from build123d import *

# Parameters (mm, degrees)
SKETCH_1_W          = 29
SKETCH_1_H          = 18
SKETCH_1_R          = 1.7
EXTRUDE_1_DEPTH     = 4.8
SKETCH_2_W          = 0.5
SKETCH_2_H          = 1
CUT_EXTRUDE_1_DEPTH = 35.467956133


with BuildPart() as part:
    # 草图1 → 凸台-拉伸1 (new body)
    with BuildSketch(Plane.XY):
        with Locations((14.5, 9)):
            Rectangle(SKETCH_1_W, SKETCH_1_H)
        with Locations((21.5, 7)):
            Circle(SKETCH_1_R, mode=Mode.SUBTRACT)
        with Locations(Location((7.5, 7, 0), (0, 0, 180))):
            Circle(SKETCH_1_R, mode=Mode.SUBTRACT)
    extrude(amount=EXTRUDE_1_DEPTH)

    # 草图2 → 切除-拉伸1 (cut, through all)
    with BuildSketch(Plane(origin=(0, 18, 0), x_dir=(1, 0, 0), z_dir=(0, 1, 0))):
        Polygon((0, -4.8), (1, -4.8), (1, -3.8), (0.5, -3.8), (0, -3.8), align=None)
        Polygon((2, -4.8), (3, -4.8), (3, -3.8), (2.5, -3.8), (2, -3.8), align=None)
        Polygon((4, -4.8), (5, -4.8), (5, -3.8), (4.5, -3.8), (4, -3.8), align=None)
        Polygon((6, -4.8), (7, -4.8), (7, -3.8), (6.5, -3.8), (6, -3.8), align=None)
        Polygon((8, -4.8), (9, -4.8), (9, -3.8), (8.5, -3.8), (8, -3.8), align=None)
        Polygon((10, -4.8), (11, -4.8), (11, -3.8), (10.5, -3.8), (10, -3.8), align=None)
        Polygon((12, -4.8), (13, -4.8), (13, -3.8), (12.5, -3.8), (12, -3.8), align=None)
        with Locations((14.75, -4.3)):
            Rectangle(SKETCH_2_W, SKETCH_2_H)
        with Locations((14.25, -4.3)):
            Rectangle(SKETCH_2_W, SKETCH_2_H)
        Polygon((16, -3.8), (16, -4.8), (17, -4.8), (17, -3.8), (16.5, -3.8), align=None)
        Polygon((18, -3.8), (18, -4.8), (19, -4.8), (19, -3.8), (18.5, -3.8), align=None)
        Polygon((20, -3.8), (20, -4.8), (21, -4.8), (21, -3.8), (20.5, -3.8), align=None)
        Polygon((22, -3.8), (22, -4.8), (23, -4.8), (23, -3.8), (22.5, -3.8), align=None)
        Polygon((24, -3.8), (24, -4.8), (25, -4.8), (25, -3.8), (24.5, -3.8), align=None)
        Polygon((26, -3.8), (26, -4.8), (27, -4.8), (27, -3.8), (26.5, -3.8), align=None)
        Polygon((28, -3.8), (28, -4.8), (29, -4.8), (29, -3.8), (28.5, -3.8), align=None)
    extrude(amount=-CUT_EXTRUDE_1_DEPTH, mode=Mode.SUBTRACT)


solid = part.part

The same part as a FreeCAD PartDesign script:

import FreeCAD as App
import Part
import Sketcher


def add_polygon(sketch, points):
    """Adds a closed chain of lines whose ends are joined by coincident constraints."""
    first, n = sketch.GeometryCount, len(points)
    for a, b in zip(points, points[1:] + points[:1]):
        sketch.addGeometry(Part.LineSegment(App.Vector(*a, 0), App.Vector(*b, 0)), False)
    for i in range(n):
        sketch.addConstraint(Sketcher.Constraint("Coincident", first + i, 2, first + (i + 1) % n, 1))

doc = App.newDocument("Part")
params = doc.addObject("Spreadsheet::Sheet", "Params")
for row, (alias, value) in enumerate([
    ("sketch1_diameter", "3.4 mm"),
    ("sketch1_width", "29 mm"),
    ("sketch1_height", "18 mm"),
    ("pad1_length", "4.8 mm"),
    ("sketch2_width", "1 mm"),
], start=1):
    params.set(f"A{row}", alias)
    params.set(f"B{row}", "=" + value)
    params.setAlias(f"B{row}", alias)

body = doc.addObject("PartDesign::Body", "Body")

# Sketch on XY plane
sketch1 = body.newObject("Sketcher::SketchObject", "Sketch")
sketch1.AttachmentSupport = (doc.getObject("XY_Plane"), [""])
sketch1.MapMode = "FlatFace"
add_polygon(sketch1, [(0, 18), (0, 0), (29, 0), (29, 18)])  # lines 0-3
sketch1.addGeometry(Part.Circle(App.Vector(7.5, 7, 0), App.Vector(0, 0, 1), 1.7), False)  # 4
sketch1.addGeometry(Part.Circle(App.Vector(21.5, 7, 0), App.Vector(0, 0, 1), 1.7), False)  # 5
sketch1.addConstraint([
    Sketcher.Constraint("Vertical", 0),
    Sketcher.Constraint("Horizontal", 1),
    Sketcher.Constraint("Vertical", 2),
    Sketcher.Constraint("Horizontal", 3),
    Sketcher.Constraint("Coincident", 0, 2, -1, 1),
    Sketcher.Constraint("Equal", 4, 5),
    Sketcher.Constraint("Horizontal", 4, 3, 5, 3),
    Sketcher.Constraint("Diameter", 4, 3.4),
    Sketcher.Constraint("DistanceX", 1, 1, 1, 2, 29.0),
    Sketcher.Constraint("DistanceY", 0, 2, 0, 1, 18.0),
    Sketcher.Constraint("DistanceY", -1, 1, 4, 3, 7.0),
    Sketcher.Constraint("DistanceX", 4, 3, 5, 3, 14.0),
    Sketcher.Constraint("DistanceX", -1, 1, 4, 3, 7.5),
])
sketch1.setExpression("Constraints[11]", "Params.sketch1_diameter")
sketch1.setExpression("Constraints[12]", "Params.sketch1_width")
sketch1.setExpression("Constraints[13]", "Params.sketch1_height")
pad1 = body.newObject("PartDesign::Pad", "Pad")
pad1.Profile = sketch1
pad1.setExpression("Length", "Params.pad1_length")

# Sketch on XZ plane
sketch2 = body.newObject("Sketcher::SketchObject", "Sketch001")
sketch2.AttachmentSupport = (doc.getObject("XZ_Plane"), [""])
sketch2.MapMode = "FlatFace"
sketch2.AttachmentOffset = App.Placement(App.Vector(0, 0, -18), App.Rotation())
add_polygon(sketch2, [(0, 4.8), (1, 4.8), (1, 3.8), (0, 3.8)])  # lines 0-3
add_polygon(sketch2, [(2, 4.8), (3, 4.8), (3, 3.8), (2, 3.8)])  # lines 4-7
add_polygon(sketch2, [(4, 4.8), (5, 4.8), (5, 3.8), (4, 3.8)])  # lines 8-11
add_polygon(sketch2, [(6, 4.8), (7, 4.8), (7, 3.8), (6, 3.8)])  # lines 12-15
add_polygon(sketch2, [(8, 4.8), (9, 4.8), (9, 3.8), (8, 3.8)])  # lines 16-19
add_polygon(sketch2, [(10, 4.8), (11, 4.8), (11, 3.8), (10, 3.8)])  # lines 20-23
add_polygon(sketch2, [(12, 4.8), (13, 4.8), (13, 3.8), (12, 3.8)])  # lines 24-27
add_polygon(sketch2, [(15, 4.8), (15, 3.8), (14, 3.8), (14, 4.8)])  # lines 28-31
add_polygon(sketch2, [(16, 3.8), (16, 4.8), (17, 4.8), (17, 3.8)])  # lines 32-35
add_polygon(sketch2, [(18, 3.8), (18, 4.8), (19, 4.8), (19, 3.8)])  # lines 36-39
add_polygon(sketch2, [(20, 3.8), (20, 4.8), (21, 4.8), (21, 3.8)])  # lines 40-43
add_polygon(sketch2, [(22, 3.8), (22, 4.8), (23, 4.8), (23, 3.8)])  # lines 44-47
add_polygon(sketch2, [(24, 3.8), (24, 4.8), (25, 4.8), (25, 3.8)])  # lines 48-51
add_polygon(sketch2, [(26, 3.8), (26, 4.8), (27, 4.8), (27, 3.8)])  # lines 52-55
add_polygon(sketch2, [(28, 3.8), (28, 4.8), (29, 4.8), (29, 3.8)])  # lines 56-59
sketch2.addConstraint([
    Sketcher.Constraint("Horizontal", 0),
    Sketcher.Constraint("Vertical", 1),
    Sketcher.Constraint("Horizontal", 2),
    Sketcher.Constraint("Vertical", 3),
    Sketcher.Constraint("Horizontal", 4),
    Sketcher.Constraint("Vertical", 5),
    Sketcher.Constraint("Horizontal", 6),
    Sketcher.Constraint("Vertical", 7),
    Sketcher.Constraint("Horizontal", 8),
    Sketcher.Constraint("Vertical", 9),
    Sketcher.Constraint("Horizontal", 10),
    Sketcher.Constraint("Vertical", 11),
    Sketcher.Constraint("Horizontal", 12),
    Sketcher.Constraint("Vertical", 13),
    Sketcher.Constraint("Horizontal", 14),
    Sketcher.Constraint("Vertical", 15),
    Sketcher.Constraint("Horizontal", 16),
    Sketcher.Constraint("Vertical", 17),
    Sketcher.Constraint("Horizontal", 18),
    Sketcher.Constraint("Vertical", 19),
    Sketcher.Constraint("Horizontal", 20),
    Sketcher.Constraint("Vertical", 21),
    Sketcher.Constraint("Horizontal", 22),
    Sketcher.Constraint("Vertical", 23),
    Sketcher.Constraint("Horizontal", 24),
    Sketcher.Constraint("Vertical", 25),
    Sketcher.Constraint("Horizontal", 26),
    Sketcher.Constraint("Vertical", 27),
    Sketcher.Constraint("Vertical", 28),
    Sketcher.Constraint("Horizontal", 29),
    Sketcher.Constraint("Vertical", 30),
    Sketcher.Constraint("Horizontal", 31),
    Sketcher.Constraint("Vertical", 32),
    Sketcher.Constraint("Horizontal", 33),
    Sketcher.Constraint("Vertical", 34),
    Sketcher.Constraint("Horizontal", 35),
    Sketcher.Constraint("Vertical", 36),
    Sketcher.Constraint("Horizontal", 37),
    Sketcher.Constraint("Vertical", 38),
    Sketcher.Constraint("Horizontal", 39),
    Sketcher.Constraint("Vertical", 40),
    Sketcher.Constraint("Horizontal", 41),
    Sketcher.Constraint("Vertical", 42),
    Sketcher.Constraint("Horizontal", 43),
    Sketcher.Constraint("Vertical", 44),
    Sketcher.Constraint("Horizontal", 45),
    Sketcher.Constraint("Vertical", 46),
    Sketcher.Constraint("Horizontal", 47),
    Sketcher.Constraint("Vertical", 48),
    Sketcher.Constraint("Horizontal", 49),
    Sketcher.Constraint("Vertical", 50),
    Sketcher.Constraint("Horizontal", 51),
    Sketcher.Constraint("Vertical", 52),
    Sketcher.Constraint("Horizontal", 53),
    Sketcher.Constraint("Vertical", 54),
    Sketcher.Constraint("Horizontal", 55),
    Sketcher.Constraint("Vertical", 56),
    Sketcher.Constraint("Horizontal", 57),
    Sketcher.Constraint("Vertical", 58),
    Sketcher.Constraint("Horizontal", 59),
    Sketcher.Constraint("PointOnObject", 2, 2, -2),
    Sketcher.Constraint("Horizontal", 3, 2, 4, 2),
    Sketcher.Constraint("Horizontal", 2, 2, 5, 2),
    Sketcher.Constraint("Horizontal", 7, 2, 8, 2),
    Sketcher.Constraint("Horizontal", 6, 2, 9, 2),
    Sketcher.Constraint("Horizontal", 11, 2, 12, 2),
    Sketcher.Constraint("Horizontal", 10, 2, 13, 2),
    Sketcher.Constraint("Horizontal", 15, 2, 16, 2),
    Sketcher.Constraint("Horizontal", 14, 2, 17, 2),
    Sketcher.Constraint("Horizontal", 19, 2, 20, 2),
    Sketcher.Constraint("Horizontal", 18, 2, 21, 2),
    Sketcher.Constraint("Horizontal", 23, 2, 24, 2),
    Sketcher.Constraint("Horizontal", 22, 2, 25, 2),
    Sketcher.Constraint("Horizontal", 26, 2, 28, 2),
    Sketcher.Constraint("Horizontal", 27, 2, 30, 2),
    Sketcher.Constraint("Horizontal", 31, 2, 32, 2),
    Sketcher.Constraint("Horizontal", 29, 2, 34, 2),
    Sketcher.Constraint("Horizontal", 33, 2, 36, 2),
    Sketcher.Constraint("Horizontal", 35, 2, 38, 2),
    Sketcher.Constraint("Horizontal", 37, 2, 40, 2),
    Sketcher.Constraint("Horizontal", 39, 2, 42, 2),
    Sketcher.Constraint("Horizontal", 41, 2, 44, 2),
    Sketcher.Constraint("Horizontal", 43, 2, 46, 2),
    Sketcher.Constraint("Horizontal", 45, 2, 48, 2),
    Sketcher.Constraint("Horizontal", 47, 2, 50, 2),
    Sketcher.Constraint("Horizontal", 49, 2, 52, 2),
    Sketcher.Constraint("Horizontal", 51, 2, 54, 2),
    Sketcher.Constraint("Horizontal", 53, 2, 56, 2),
    Sketcher.Constraint("Horizontal", 55, 2, 58, 2),
    Sketcher.Constraint("Equal", 2, 4),
    Sketcher.Constraint("Equal", 6, 8),
    Sketcher.Constraint("Equal", 10, 12),
    Sketcher.Constraint("Equal", 14, 16),
    Sketcher.Constraint("Equal", 18, 20),
    Sketcher.Constraint("Equal", 22, 24),
    Sketcher.Constraint("Equal", 26, 29),
    Sketcher.Constraint("Equal", 31, 33),
    Sketcher.Constraint("Equal", 35, 37),
    Sketcher.Constraint("Equal", 39, 41),
    Sketcher.Constraint("Equal", 43, 45),
    Sketcher.Constraint("Equal", 47, 49),
    Sketcher.Constraint("Equal", 51, 53),
    Sketcher.Constraint("Equal", 55, 57),
    Sketcher.Constraint("Equal", 59, 1),
    Sketcher.Constraint("DistanceX", 0, 1, 0, 2, 1.0),
    Sketcher.Constraint("DistanceX", -1, 1, 4, 2, 3.0),
    Sketcher.Constraint("DistanceX", -1, 1, 8, 2, 5.0),
    Sketcher.Constraint("DistanceX", -1, 1, 12, 2, 7.0),
    Sketcher.Constraint("DistanceX", -1, 1, 16, 2, 9.0),
    Sketcher.Constraint("DistanceX", -1, 1, 20, 2, 11.0),
    Sketcher.Constraint("DistanceX", -1, 1, 24, 2, 13.0),
    Sketcher.Constraint("DistanceX", -1, 1, 28, 2, 15.0),
    Sketcher.Constraint("DistanceX", -1, 1, 32, 2, 16.0),
    Sketcher.Constraint("DistanceX", -1, 1, 36, 2, 18.0),
    Sketcher.Constraint("DistanceX", -1, 1, 40, 2, 20.0),
    Sketcher.Constraint("DistanceX", -1, 1, 44, 2, 22.0),
    Sketcher.Constraint("DistanceX", -1, 1, 48, 2, 24.0),
    Sketcher.Constraint("DistanceX", -1, 1, 52, 2, 26.0),
    Sketcher.Constraint("DistanceX", -1, 1, 56, 2, 28.0),
    Sketcher.Constraint("DistanceY", -1, 1, 0, 2, 4.8),
])
sketch2.setExpression("Constraints[164]", "Params.sketch2_width")
pocket1 = body.newObject("PartDesign::Pocket", "Pocket")
pocket1.Profile = sketch2
pocket1.Type = "ThroughAll"
pocket1.Reversed = True

doc.recompute()
